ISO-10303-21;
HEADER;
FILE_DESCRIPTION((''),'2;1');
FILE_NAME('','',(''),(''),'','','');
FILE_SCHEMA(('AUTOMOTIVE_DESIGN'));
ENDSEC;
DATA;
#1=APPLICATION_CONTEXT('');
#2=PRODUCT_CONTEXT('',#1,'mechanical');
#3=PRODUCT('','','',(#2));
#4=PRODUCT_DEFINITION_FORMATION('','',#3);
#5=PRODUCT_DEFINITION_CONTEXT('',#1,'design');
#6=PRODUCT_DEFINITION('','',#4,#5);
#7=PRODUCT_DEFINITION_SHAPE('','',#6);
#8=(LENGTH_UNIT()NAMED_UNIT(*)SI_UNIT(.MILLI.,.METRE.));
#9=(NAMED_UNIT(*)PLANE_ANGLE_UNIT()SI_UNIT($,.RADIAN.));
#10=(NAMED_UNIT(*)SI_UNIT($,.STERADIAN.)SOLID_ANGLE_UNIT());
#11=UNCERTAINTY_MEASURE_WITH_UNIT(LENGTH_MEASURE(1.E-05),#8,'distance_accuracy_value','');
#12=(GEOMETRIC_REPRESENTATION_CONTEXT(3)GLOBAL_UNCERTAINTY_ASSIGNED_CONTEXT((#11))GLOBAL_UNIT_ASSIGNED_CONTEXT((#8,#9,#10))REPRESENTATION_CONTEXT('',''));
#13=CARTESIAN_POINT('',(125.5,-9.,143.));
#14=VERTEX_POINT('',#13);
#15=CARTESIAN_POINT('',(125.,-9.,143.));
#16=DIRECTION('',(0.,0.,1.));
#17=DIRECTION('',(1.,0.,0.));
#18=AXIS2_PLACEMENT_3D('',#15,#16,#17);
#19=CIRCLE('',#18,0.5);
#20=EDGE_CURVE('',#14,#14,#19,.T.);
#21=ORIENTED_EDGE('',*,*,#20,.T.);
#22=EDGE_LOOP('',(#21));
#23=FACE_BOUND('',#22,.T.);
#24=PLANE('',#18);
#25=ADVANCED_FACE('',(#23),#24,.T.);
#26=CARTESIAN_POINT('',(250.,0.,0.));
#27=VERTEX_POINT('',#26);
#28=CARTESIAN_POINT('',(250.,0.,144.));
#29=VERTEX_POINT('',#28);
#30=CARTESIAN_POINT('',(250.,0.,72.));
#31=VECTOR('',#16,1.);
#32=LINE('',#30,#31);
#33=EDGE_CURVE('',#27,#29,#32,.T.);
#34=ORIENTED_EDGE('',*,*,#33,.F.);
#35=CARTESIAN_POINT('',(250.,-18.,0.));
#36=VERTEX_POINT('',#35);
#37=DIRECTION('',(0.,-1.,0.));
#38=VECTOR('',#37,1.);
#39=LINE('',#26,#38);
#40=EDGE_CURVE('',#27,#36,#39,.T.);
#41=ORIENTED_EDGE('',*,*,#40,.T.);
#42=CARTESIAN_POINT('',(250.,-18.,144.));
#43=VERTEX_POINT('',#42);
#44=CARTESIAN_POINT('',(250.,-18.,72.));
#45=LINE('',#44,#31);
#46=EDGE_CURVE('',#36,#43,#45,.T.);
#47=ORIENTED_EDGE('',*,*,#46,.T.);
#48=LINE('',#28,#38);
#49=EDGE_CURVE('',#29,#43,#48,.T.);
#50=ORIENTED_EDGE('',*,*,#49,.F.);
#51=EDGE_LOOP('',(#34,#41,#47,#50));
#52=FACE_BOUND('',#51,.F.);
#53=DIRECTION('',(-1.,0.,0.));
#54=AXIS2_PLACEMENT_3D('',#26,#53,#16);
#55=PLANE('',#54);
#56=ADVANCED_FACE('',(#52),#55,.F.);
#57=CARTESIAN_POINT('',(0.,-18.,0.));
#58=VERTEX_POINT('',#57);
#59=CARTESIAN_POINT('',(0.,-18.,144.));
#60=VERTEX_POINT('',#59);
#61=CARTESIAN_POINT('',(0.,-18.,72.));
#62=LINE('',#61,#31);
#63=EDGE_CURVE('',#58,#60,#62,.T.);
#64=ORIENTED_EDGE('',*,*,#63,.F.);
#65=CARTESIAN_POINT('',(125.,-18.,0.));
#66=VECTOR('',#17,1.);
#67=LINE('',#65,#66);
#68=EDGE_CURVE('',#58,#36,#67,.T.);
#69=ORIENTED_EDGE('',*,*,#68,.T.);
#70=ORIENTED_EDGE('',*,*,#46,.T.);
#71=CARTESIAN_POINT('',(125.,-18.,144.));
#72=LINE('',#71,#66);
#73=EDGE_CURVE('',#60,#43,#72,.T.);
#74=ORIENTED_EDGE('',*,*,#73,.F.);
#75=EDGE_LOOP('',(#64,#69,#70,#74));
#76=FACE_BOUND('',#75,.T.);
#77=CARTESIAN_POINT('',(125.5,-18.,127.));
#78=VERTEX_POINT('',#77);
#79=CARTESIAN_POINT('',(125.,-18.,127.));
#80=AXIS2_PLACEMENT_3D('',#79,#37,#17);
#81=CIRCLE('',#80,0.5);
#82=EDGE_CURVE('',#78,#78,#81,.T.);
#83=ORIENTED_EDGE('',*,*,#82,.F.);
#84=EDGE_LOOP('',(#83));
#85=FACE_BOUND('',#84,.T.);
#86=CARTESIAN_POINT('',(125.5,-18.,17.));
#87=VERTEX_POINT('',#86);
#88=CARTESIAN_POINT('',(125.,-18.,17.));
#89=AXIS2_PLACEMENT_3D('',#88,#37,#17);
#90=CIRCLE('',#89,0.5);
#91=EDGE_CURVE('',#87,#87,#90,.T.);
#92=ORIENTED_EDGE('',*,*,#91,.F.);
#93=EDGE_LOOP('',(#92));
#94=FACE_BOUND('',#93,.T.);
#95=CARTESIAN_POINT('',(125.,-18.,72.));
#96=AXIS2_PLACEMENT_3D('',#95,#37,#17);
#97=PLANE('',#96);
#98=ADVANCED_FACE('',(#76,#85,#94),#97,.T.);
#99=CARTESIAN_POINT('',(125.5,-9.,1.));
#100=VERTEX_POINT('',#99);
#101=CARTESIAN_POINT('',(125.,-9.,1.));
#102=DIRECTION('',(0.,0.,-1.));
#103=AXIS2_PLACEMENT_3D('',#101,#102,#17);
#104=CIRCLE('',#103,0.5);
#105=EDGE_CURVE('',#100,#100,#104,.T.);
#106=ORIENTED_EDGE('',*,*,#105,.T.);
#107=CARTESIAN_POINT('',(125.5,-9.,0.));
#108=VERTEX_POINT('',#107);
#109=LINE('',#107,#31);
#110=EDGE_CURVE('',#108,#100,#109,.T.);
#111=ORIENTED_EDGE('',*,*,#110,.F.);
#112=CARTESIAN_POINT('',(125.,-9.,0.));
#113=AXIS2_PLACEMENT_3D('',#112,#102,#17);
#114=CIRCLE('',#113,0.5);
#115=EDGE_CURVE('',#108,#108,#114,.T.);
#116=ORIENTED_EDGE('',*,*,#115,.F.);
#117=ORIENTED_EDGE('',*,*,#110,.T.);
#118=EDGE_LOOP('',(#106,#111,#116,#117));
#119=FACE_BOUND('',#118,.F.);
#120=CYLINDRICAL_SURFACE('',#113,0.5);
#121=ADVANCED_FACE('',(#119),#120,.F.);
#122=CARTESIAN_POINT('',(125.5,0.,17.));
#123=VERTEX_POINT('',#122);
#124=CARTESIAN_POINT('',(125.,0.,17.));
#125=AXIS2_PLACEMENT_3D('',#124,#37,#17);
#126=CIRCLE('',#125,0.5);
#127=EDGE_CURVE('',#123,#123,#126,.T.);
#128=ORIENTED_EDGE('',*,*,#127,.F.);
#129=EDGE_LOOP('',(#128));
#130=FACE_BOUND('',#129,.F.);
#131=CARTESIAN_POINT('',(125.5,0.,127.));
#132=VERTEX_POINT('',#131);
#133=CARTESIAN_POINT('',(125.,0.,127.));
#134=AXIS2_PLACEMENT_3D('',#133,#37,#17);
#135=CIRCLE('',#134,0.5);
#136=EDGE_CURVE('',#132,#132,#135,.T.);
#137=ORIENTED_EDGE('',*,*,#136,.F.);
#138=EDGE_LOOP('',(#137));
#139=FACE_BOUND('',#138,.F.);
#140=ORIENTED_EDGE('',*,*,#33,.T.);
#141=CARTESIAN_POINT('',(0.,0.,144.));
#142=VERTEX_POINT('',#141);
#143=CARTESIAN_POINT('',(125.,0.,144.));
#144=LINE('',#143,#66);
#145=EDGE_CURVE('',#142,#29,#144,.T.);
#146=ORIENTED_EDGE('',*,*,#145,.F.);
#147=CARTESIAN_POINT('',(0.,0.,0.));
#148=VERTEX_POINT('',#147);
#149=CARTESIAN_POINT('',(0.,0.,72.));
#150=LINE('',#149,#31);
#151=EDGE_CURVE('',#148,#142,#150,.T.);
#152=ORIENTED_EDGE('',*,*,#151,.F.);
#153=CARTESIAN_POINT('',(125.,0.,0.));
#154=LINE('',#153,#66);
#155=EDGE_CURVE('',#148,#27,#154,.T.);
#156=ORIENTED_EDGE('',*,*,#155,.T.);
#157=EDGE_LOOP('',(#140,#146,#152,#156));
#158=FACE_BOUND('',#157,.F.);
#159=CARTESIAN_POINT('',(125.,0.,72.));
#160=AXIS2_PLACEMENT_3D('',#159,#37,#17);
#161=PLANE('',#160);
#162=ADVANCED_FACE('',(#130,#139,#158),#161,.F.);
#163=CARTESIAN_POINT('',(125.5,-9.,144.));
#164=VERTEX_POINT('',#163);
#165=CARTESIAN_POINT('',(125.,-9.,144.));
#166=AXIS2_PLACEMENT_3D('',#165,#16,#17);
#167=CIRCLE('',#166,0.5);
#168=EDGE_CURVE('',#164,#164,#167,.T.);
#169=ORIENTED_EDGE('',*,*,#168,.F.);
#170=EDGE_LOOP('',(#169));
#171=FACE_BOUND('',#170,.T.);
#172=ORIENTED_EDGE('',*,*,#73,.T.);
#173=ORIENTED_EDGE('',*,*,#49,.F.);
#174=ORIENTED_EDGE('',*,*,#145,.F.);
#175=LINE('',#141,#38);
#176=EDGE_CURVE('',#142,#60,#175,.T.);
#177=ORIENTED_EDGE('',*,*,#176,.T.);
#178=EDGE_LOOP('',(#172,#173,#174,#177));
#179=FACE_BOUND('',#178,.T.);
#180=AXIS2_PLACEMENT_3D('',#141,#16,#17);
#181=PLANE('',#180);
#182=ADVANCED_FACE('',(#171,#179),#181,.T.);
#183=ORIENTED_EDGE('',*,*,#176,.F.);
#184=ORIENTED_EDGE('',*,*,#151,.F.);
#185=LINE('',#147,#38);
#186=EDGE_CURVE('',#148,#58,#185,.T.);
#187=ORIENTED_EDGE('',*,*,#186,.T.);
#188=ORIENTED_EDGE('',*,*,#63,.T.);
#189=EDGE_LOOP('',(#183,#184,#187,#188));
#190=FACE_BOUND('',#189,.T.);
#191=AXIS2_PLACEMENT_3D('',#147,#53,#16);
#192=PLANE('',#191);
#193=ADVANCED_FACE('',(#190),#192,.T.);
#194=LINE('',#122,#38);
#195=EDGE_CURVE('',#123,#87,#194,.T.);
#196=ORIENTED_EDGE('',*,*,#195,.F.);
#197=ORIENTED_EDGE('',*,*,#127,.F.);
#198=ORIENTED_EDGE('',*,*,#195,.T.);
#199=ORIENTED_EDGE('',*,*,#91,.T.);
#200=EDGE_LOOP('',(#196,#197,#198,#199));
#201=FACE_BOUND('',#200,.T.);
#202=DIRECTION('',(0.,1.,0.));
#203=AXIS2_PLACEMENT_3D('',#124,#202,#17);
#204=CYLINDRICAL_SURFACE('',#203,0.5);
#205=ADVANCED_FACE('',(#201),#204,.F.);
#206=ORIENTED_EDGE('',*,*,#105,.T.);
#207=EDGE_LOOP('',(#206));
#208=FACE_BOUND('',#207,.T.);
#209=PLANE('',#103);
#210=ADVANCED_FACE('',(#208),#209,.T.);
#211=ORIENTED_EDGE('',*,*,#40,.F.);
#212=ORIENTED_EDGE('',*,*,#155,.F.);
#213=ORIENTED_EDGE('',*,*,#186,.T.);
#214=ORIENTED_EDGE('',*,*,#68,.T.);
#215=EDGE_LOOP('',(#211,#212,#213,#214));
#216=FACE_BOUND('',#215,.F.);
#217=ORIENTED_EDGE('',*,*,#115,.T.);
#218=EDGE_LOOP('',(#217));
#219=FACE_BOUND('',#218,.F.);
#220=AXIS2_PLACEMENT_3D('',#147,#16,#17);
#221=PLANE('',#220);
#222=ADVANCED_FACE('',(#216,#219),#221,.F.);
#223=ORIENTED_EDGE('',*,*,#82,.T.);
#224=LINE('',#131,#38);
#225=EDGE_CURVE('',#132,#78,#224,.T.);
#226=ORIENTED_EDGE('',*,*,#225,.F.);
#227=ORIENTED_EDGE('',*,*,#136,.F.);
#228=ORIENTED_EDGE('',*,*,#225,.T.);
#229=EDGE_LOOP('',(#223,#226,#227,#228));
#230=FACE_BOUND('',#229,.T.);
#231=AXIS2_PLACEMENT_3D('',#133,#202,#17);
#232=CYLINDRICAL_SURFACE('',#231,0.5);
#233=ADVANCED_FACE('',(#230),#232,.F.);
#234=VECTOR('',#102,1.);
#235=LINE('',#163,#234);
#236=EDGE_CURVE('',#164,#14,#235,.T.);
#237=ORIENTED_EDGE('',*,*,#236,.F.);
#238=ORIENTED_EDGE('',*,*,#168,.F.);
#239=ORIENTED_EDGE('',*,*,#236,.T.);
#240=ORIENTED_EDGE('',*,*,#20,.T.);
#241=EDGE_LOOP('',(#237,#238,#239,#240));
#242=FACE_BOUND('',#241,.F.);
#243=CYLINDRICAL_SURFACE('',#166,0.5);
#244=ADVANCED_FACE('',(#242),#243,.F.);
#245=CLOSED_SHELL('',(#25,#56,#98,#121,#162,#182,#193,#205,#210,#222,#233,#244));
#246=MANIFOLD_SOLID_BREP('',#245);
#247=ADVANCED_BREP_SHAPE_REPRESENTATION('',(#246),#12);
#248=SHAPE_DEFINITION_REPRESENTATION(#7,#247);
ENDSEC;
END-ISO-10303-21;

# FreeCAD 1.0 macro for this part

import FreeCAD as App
import Part
import Sketcher

V = App.Vector


def add_polygon(sketch, points):
    """Adds a closed chain of lines whose ends are joined by coincident constraints."""
    first, n = sketch.GeometryCount, len(points)
    for a, b in zip(points, points[1:] + points[:1]):
        sketch.addGeometry(Part.LineSegment(App.Vector(*a, 0), App.Vector(*b, 0)), False)
    for i in range(n):
        sketch.addConstraint(Sketcher.Constraint("Coincident", first + i, 2, first + (i + 1) % n, 1))

doc = App.newDocument("Part")
body = doc.addObject("PartDesign::Body", "Body")

sketch1 = body.newObject("Sketcher::SketchObject", "Sketch")
sketch1.AttachmentSupport = (doc.getObject("XZ_Plane"), [""])
sketch1.MapMode = "FlatFace"
add_polygon(sketch1, [(0, 144), (0, 0), (250, 0), (250, 144)])
sketch1.addGeometry(Part.Circle(V(125, 17, 0), V(0, 0, 1), 0.5), False)
sketch1.addGeometry(Part.Circle(V(125, 127, 0), V(0, 0, 1), 0.5), False)
sketch1.addConstraint(Sketcher.Constraint("Vertical", 0))
sketch1.addConstraint(Sketcher.Constraint("Horizontal", 1))
sketch1.addConstraint(Sketcher.Constraint("Vertical", 2))
sketch1.addConstraint(Sketcher.Constraint("Horizontal", 3))
sketch1.addConstraint(Sketcher.Constraint("Coincident", 0, 2, -1, 1))
sketch1.addConstraint(Sketcher.Constraint("Equal", 4, 5))
sketch1.addConstraint(Sketcher.Constraint("Vertical", 4, 3, 5, 3))
sketch1.addConstraint(Sketcher.Constraint("Diameter", 4, 1.0))
sketch1.addConstraint(Sketcher.Constraint("DistanceX", 1, 1, 1, 2, 250.0))
sketch1.addConstraint(Sketcher.Constraint("DistanceY", 0, 2, 0, 1, 144.0))
sketch1.addConstraint(Sketcher.Constraint("DistanceX", -1, 1, 4, 3, 125.0))
sketch1.addConstraint(Sketcher.Constraint("DistanceY", -1, 1, 4, 3, 17.0))
sketch1.addConstraint(Sketcher.Constraint("DistanceY", -1, 1, 5, 3, 127.0))
pad1 = body.newObject("PartDesign::Pad", "Pad")
pad1.Profile = sketch1
pad1.Length = 18

sketch2 = body.newObject("Sketcher::SketchObject", "Sketch001")
sketch2.AttachmentSupport = (doc.getObject("XY_Plane"), [""])
sketch2.MapMode = "FlatFace"
sketch2.addGeometry(Part.Circle(V(125, -9, 0), V(0, 0, 1), 0.5), False)
sketch2.addConstraint(Sketcher.Constraint("Diameter", 0, 1.0))
sketch2.addConstraint(Sketcher.Constraint("DistanceX", -1, 1, 0, 3, 125.0))
sketch2.addConstraint(Sketcher.Constraint("DistanceY", 0, 3, -1, 1, 9.0))
pocket1 = body.newObject("PartDesign::Pocket", "Pocket")
pocket1.Profile = sketch2
pocket1.Length = 1
pocket1.Reversed = True

sketch3 = body.newObject("Sketcher::SketchObject", "Sketch002")
sketch3.AttachmentSupport = (doc.getObject("XY_Plane"), [""])
sketch3.MapMode = "FlatFace"
sketch3.AttachmentOffset = App.Placement(V(0, 0, 144), App.Rotation())
sketch3.addGeometry(Part.Circle(V(125, -9, 0), V(0, 0, 1), 0.5), False)
sketch3.addConstraint(Sketcher.Constraint("Diameter", 0, 1.0))
sketch3.addConstraint(Sketcher.Constraint("DistanceX", -1, 1, 0, 3, 125.0))
sketch3.addConstraint(Sketcher.Constraint("DistanceY", 0, 3, -1, 1, 9.0))
pocket2 = body.newObject("PartDesign::Pocket", "Pocket001")
pocket2.Profile = sketch3
pocket2.Length = 1

doc.recompute()
